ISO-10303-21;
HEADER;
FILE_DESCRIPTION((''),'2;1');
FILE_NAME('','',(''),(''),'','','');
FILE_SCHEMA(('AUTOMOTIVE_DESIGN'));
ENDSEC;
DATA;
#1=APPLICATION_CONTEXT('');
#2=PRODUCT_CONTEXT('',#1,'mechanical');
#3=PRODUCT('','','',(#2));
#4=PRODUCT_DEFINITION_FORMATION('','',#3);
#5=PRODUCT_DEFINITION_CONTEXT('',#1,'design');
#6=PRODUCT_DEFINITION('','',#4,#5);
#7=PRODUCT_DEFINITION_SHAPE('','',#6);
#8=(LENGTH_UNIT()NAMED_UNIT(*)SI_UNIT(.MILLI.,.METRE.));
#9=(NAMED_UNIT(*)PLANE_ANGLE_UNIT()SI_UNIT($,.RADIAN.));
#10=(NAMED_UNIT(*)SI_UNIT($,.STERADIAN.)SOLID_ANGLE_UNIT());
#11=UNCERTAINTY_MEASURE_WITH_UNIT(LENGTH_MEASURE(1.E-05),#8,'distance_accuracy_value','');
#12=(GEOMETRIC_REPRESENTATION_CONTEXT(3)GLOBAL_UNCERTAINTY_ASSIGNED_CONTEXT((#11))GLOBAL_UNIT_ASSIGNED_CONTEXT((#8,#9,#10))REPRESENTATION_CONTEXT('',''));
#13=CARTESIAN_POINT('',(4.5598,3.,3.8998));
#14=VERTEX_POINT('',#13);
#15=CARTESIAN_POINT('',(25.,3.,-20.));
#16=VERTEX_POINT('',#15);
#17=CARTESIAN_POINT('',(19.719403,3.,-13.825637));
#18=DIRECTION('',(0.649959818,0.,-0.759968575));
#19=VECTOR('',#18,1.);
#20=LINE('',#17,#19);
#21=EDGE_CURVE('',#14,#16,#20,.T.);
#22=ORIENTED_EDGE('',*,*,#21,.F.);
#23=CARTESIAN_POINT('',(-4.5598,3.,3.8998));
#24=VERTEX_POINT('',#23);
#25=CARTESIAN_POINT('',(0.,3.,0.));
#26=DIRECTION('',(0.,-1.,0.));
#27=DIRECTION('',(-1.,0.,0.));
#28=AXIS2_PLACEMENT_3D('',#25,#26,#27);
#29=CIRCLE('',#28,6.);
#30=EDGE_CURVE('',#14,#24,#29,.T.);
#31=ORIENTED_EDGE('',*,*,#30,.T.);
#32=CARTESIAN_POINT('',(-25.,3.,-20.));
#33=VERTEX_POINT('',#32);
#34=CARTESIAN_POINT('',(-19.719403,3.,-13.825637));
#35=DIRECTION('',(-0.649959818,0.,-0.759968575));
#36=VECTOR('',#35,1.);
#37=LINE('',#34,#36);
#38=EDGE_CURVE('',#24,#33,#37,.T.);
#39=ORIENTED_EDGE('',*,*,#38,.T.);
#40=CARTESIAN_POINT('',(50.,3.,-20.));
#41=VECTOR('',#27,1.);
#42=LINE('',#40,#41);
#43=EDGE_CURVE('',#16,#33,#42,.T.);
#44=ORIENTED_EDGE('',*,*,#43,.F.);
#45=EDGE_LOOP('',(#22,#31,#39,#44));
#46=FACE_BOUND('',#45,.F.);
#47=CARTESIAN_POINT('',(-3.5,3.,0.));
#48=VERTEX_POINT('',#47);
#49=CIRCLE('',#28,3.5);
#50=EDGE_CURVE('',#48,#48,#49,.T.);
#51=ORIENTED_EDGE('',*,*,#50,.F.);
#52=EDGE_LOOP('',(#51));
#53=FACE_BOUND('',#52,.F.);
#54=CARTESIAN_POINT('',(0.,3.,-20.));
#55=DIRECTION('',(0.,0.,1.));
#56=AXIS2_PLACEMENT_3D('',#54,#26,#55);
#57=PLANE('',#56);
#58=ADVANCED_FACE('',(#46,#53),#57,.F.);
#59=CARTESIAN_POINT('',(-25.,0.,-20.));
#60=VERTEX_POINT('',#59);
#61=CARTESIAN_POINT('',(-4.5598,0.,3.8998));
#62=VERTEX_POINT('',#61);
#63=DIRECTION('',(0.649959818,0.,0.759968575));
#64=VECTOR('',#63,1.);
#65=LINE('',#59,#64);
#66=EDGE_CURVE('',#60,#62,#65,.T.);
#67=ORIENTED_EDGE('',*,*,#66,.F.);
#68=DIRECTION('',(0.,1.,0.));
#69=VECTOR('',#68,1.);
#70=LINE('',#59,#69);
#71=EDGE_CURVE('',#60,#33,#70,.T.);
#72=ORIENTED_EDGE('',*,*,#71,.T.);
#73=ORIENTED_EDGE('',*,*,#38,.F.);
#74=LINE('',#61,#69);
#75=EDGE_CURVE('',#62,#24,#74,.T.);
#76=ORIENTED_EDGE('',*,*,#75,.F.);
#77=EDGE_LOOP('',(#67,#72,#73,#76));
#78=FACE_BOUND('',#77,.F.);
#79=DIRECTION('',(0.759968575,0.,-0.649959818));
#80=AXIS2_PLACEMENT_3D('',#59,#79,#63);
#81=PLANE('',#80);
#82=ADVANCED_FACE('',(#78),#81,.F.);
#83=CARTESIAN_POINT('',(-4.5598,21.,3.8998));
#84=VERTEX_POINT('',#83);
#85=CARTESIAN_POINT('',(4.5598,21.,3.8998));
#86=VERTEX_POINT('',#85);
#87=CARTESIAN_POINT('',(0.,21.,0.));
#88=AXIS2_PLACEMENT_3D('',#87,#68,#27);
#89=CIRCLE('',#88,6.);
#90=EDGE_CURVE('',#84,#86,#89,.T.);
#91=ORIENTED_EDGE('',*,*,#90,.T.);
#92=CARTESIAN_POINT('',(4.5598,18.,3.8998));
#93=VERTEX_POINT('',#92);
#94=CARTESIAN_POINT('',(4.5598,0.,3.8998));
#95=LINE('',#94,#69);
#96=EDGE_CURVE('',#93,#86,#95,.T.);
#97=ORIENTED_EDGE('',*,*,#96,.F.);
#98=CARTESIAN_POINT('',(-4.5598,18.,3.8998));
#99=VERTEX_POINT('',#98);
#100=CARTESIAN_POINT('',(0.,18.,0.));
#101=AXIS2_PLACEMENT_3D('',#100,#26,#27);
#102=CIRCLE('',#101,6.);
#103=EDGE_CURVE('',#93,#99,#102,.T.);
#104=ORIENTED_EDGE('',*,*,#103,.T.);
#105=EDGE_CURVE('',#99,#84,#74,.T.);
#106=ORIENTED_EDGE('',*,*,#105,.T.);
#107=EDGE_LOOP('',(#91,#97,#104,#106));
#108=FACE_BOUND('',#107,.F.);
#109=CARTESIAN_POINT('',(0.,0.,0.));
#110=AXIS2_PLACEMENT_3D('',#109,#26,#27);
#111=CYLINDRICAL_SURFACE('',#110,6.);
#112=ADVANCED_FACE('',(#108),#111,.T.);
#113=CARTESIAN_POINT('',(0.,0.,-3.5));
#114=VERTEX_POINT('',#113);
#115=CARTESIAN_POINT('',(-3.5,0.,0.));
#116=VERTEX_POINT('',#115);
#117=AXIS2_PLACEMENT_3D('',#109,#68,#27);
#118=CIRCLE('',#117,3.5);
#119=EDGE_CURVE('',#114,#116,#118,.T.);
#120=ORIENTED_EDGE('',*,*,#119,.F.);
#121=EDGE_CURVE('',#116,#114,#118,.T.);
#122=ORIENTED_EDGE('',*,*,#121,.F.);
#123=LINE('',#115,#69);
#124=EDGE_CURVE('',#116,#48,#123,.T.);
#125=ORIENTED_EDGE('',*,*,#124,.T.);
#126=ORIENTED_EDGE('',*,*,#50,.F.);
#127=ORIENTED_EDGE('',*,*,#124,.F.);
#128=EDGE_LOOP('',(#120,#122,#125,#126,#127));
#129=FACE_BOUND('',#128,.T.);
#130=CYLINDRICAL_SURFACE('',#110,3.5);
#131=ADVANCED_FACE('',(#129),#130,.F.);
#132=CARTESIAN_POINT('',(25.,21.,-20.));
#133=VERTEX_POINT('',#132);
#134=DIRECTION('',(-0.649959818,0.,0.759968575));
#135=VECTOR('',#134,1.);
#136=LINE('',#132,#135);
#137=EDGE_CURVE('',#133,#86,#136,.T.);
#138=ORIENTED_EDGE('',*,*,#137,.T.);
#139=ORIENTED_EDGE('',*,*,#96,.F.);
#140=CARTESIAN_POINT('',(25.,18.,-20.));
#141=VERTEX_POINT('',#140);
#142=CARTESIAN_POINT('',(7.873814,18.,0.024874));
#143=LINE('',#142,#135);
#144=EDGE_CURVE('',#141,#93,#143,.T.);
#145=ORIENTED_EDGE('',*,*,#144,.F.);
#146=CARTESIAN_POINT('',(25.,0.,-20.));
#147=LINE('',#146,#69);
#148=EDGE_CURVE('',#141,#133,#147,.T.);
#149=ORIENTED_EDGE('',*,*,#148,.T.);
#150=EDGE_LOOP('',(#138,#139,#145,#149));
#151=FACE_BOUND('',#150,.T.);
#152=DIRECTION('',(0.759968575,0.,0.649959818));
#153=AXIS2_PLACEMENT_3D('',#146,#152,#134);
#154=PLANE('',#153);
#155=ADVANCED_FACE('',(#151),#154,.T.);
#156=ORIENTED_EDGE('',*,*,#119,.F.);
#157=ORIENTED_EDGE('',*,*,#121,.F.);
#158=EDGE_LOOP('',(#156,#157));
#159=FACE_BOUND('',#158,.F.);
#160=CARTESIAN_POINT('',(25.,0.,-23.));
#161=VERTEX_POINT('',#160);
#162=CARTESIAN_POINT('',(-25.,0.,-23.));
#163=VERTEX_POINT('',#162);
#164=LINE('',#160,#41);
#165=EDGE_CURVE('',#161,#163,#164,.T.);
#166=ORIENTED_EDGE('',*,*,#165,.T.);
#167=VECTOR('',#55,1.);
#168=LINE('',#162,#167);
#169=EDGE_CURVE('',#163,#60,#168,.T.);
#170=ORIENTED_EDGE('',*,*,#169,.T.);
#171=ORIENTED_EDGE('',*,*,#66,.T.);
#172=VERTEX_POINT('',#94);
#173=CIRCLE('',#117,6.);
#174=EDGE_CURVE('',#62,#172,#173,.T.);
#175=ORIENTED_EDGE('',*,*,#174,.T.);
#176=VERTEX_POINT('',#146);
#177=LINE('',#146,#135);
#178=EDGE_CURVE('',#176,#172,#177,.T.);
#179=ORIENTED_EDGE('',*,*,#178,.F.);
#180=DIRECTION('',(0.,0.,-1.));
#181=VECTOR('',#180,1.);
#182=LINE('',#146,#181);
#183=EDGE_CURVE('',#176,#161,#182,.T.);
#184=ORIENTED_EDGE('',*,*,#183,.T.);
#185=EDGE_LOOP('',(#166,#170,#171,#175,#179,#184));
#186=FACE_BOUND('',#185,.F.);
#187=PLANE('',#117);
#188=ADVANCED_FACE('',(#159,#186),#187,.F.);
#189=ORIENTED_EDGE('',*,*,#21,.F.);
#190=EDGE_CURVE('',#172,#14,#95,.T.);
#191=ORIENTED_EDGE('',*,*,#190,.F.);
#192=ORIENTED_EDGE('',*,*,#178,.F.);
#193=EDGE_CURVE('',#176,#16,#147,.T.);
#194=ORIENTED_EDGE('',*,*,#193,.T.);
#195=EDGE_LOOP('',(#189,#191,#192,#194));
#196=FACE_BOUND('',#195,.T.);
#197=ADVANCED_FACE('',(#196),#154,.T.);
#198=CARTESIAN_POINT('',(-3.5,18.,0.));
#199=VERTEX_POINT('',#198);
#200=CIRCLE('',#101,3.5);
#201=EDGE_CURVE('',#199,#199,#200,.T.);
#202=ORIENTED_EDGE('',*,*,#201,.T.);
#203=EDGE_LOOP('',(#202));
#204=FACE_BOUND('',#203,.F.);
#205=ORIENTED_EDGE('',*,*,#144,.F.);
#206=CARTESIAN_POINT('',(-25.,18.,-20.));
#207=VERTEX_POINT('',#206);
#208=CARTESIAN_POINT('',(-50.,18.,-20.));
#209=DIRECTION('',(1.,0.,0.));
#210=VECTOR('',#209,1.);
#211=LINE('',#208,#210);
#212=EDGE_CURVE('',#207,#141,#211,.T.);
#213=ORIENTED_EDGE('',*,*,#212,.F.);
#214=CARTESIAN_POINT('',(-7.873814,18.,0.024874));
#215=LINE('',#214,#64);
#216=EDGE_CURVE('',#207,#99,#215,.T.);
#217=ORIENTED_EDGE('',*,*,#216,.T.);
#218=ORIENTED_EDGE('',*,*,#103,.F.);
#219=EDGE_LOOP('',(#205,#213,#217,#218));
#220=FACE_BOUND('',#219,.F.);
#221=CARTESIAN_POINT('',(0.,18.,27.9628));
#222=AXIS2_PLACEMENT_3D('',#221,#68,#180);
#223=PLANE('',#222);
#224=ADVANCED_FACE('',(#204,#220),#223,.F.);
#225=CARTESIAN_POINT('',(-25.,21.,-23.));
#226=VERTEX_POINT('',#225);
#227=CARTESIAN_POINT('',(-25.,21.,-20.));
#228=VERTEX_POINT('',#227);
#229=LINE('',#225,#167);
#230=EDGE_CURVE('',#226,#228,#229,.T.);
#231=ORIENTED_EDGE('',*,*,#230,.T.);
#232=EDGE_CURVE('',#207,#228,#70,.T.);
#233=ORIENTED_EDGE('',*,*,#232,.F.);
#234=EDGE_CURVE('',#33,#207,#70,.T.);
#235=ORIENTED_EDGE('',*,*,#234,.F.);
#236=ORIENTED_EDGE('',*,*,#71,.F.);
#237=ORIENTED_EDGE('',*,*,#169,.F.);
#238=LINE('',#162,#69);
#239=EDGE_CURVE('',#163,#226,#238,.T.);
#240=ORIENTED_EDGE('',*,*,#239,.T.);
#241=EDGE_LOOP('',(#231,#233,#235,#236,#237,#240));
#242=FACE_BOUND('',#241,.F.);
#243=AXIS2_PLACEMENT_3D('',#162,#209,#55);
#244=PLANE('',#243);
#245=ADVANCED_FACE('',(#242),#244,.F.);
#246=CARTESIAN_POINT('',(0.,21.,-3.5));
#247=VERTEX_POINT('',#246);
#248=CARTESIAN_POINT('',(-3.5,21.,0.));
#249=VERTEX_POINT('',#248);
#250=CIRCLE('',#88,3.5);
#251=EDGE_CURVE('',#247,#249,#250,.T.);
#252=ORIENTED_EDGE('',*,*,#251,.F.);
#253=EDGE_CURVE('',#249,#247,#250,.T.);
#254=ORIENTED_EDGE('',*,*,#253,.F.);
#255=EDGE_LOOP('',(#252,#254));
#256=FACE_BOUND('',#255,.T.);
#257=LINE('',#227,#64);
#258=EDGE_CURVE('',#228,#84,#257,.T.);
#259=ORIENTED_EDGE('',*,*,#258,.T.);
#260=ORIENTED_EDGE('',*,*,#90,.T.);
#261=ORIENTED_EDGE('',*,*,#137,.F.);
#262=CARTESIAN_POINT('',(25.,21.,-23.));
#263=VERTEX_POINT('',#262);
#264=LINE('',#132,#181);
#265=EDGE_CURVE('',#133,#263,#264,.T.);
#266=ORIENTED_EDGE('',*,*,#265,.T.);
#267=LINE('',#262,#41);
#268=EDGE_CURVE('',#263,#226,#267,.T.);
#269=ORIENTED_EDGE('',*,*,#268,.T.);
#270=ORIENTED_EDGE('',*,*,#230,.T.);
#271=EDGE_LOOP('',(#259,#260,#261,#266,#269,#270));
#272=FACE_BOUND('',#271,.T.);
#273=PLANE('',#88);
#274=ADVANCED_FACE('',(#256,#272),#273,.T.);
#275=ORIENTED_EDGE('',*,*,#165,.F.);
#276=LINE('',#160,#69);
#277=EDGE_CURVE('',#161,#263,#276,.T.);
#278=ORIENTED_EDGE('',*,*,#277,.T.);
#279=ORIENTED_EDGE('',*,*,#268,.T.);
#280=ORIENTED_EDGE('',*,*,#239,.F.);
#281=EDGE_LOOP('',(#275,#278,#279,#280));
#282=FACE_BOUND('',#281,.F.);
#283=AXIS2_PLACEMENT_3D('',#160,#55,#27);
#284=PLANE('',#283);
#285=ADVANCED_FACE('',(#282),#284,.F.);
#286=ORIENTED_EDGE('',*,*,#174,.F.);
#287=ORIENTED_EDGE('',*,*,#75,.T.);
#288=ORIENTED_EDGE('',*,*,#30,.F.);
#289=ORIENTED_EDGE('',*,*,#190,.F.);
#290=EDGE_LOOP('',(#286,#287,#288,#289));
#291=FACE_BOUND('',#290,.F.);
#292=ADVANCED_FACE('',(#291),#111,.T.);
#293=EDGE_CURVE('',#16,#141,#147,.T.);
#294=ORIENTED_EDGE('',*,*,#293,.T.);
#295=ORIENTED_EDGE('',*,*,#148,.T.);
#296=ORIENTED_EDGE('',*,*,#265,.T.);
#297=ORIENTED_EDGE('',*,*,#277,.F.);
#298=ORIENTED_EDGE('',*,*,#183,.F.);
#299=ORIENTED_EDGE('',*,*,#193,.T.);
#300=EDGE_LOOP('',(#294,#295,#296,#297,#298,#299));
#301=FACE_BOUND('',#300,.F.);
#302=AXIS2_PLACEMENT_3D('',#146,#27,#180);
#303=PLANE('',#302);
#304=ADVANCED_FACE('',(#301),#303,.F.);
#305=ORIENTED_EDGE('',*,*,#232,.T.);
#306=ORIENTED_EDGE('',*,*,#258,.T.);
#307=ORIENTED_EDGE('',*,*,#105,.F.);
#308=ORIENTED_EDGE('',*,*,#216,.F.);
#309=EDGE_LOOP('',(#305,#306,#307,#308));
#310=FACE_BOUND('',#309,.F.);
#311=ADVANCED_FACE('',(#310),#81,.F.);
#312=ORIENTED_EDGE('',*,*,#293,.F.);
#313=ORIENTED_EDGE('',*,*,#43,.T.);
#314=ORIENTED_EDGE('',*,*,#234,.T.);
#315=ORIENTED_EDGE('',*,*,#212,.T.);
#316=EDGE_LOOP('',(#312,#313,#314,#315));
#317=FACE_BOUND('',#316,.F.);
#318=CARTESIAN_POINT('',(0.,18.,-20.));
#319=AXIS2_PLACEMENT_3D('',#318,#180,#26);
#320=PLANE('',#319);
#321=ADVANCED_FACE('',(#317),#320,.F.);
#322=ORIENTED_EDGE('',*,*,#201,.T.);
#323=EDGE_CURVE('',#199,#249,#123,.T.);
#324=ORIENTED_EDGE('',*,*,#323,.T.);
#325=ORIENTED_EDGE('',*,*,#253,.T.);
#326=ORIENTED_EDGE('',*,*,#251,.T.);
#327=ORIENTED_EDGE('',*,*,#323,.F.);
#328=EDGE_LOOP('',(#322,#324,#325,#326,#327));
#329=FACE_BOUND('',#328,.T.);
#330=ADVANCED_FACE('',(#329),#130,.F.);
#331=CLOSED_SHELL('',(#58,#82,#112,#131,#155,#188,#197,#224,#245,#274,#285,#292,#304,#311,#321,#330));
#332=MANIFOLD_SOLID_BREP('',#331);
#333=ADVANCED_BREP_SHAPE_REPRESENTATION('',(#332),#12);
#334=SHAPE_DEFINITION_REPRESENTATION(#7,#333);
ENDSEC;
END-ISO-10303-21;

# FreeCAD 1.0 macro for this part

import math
import FreeCAD as App
import Part
import Sketcher

V = App.Vector

doc = App.newDocument("Part")
body = doc.addObject("PartDesign::Body", "Body")

# Sketch on XZ plane
sketch1 = body.newObject("Sketcher::SketchObject", "Sketch")
sketch1.AttachmentSupport = (doc.getObject("XZ_Plane"), [""])
sketch1.MapMode = "FlatFace"
sketch1.addGeometry(Part.ArcOfCircle(Part.Circle(V(0, 0, 0), V(0, 0, 1), 6), math.radians(40.538942), math.radians(139.461058)), False)
sketch1.addGeometry(Part.LineSegment(V(4.5598, 3.8998, 0), V(25, -20, 0)), False)
sketch1.addGeometry(Part.LineSegment(V(25, -20, 0), V(25, -23, 0)), False)
sketch1.addGeometry(Part.LineSegment(V(25, -23, 0), V(-25, -23, 0)), False)
sketch1.addGeometry(Part.LineSegment(V(-25, -23, 0), V(-25, -20, 0)), False)
sketch1.addGeometry(Part.LineSegment(V(-25, -20, 0), V(-4.5598, 3.8998, 0)), False)
sketch1.addGeometry(Part.Circle(V(0, 0, 0), V(0, 0, 1), 3.5), False)
sketch1.addConstraint(Sketcher.Constraint("Tangent", 0, 1, 1, 1))
sketch1.addConstraint(Sketcher.Constraint("Coincident", 1, 2, 2, 1))
sketch1.addConstraint(Sketcher.Constraint("Coincident", 2, 2, 3, 1))
sketch1.addConstraint(Sketcher.Constraint("Coincident", 3, 2, 4, 1))
sketch1.addConstraint(Sketcher.Constraint("Coincident", 4, 2, 5, 1))
sketch1.addConstraint(Sketcher.Constraint("Tangent", 5, 2, 0, 2))
sketch1.addConstraint(Sketcher.Constraint("Vertical", 2))
sketch1.addConstraint(Sketcher.Constraint("Horizontal", 3))
sketch1.addConstraint(Sketcher.Constraint("Vertical", 4))
sketch1.addConstraint(Sketcher.Constraint("Coincident", 0, 3, -1, 1))
sketch1.addConstraint(Sketcher.Constraint("Coincident", 6, 3, -1, 1))
sketch1.addConstraint(Sketcher.Constraint("Symmetric", 1, 2, 4, 2, -2))
sketch1.addConstraint(Sketcher.Constraint("Diameter", 6, 7.0))
sketch1.addConstraint(Sketcher.Constraint("Radius", 0, 6.0))
sketch1.addConstraint(Sketcher.Constraint("DistanceX", 3, 2, 3, 1, 50.0))
sketch1.addConstraint(Sketcher.Constraint("DistanceY", 2, 2, 2, 1, 3.0))
sketch1.addConstraint(Sketcher.Constraint("DistanceY", 1, 2, -1, 1, 20.0))
pad1 = body.newObject("PartDesign::Pad", "Pad")
pad1.Profile = sketch1
pad1.Length = 21
pad1.Reversed = True

# Sketch on YZ plane
sketch2 = body.newObject("Sketcher::SketchObject", "Sketch001")
sketch2.AttachmentSupport = (doc.getObject("YZ_Plane"), [""])
sketch2.MapMode = "FlatFace"
sketch2.addGeometry(Part.LineSegment(V(3, -20, 0), V(18, -20, 0)), False)
sketch2.addGeometry(Part.LineSegment(V(18, -20, 0), V(18, 27.9628, 0)), False)
sketch2.addGeometry(Part.LineSegment(V(18, 27.9628, 0), V(3, 27.9628, 0)), False)
sketch2.addGeometry(Part.LineSegment(V(3, 27.9628, 0), V(3, -20, 0)), False)
sketch2.addConstraint(Sketcher.Constraint("Coincident", 0, 2, 1, 1))
sketch2.addConstraint(Sketcher.Constraint("Coincident", 1, 2, 2, 1))
sketch2.addConstraint(Sketcher.Constraint("Coincident", 2, 2, 3, 1))
sketch2.addConstraint(Sketcher.Constraint("Coincident", 3, 2, 0, 1))
sketch2.addConstraint(Sketcher.Constraint("Horizontal", 0))
sketch2.addConstraint(Sketcher.Constraint("Vertical", 1))
sketch2.addConstraint(Sketcher.Constraint("Horizontal", 2))
sketch2.addConstraint(Sketcher.Constraint("Vertical", 3))
sketch2.addConstraint(Sketcher.Constraint("DistanceX", 0, 1, 0, 2, 15.0))
sketch2.addConstraint(Sketcher.Constraint("DistanceX", -1, 1, 0, 2, 18.0))
sketch2.addConstraint(Sketcher.Constraint("DistanceY", 0, 2, -1, 1, 20.0))
sketch2.addConstraint(Sketcher.Constraint("DistanceY", 1, 1, 1, 2, 47.9628))
pocket1 = body.newObject("PartDesign::Pocket", "Pocket")
pocket1.Profile = sketch2
pocket1.Length = 100
pocket1.Midplane = True

doc.recompute()
